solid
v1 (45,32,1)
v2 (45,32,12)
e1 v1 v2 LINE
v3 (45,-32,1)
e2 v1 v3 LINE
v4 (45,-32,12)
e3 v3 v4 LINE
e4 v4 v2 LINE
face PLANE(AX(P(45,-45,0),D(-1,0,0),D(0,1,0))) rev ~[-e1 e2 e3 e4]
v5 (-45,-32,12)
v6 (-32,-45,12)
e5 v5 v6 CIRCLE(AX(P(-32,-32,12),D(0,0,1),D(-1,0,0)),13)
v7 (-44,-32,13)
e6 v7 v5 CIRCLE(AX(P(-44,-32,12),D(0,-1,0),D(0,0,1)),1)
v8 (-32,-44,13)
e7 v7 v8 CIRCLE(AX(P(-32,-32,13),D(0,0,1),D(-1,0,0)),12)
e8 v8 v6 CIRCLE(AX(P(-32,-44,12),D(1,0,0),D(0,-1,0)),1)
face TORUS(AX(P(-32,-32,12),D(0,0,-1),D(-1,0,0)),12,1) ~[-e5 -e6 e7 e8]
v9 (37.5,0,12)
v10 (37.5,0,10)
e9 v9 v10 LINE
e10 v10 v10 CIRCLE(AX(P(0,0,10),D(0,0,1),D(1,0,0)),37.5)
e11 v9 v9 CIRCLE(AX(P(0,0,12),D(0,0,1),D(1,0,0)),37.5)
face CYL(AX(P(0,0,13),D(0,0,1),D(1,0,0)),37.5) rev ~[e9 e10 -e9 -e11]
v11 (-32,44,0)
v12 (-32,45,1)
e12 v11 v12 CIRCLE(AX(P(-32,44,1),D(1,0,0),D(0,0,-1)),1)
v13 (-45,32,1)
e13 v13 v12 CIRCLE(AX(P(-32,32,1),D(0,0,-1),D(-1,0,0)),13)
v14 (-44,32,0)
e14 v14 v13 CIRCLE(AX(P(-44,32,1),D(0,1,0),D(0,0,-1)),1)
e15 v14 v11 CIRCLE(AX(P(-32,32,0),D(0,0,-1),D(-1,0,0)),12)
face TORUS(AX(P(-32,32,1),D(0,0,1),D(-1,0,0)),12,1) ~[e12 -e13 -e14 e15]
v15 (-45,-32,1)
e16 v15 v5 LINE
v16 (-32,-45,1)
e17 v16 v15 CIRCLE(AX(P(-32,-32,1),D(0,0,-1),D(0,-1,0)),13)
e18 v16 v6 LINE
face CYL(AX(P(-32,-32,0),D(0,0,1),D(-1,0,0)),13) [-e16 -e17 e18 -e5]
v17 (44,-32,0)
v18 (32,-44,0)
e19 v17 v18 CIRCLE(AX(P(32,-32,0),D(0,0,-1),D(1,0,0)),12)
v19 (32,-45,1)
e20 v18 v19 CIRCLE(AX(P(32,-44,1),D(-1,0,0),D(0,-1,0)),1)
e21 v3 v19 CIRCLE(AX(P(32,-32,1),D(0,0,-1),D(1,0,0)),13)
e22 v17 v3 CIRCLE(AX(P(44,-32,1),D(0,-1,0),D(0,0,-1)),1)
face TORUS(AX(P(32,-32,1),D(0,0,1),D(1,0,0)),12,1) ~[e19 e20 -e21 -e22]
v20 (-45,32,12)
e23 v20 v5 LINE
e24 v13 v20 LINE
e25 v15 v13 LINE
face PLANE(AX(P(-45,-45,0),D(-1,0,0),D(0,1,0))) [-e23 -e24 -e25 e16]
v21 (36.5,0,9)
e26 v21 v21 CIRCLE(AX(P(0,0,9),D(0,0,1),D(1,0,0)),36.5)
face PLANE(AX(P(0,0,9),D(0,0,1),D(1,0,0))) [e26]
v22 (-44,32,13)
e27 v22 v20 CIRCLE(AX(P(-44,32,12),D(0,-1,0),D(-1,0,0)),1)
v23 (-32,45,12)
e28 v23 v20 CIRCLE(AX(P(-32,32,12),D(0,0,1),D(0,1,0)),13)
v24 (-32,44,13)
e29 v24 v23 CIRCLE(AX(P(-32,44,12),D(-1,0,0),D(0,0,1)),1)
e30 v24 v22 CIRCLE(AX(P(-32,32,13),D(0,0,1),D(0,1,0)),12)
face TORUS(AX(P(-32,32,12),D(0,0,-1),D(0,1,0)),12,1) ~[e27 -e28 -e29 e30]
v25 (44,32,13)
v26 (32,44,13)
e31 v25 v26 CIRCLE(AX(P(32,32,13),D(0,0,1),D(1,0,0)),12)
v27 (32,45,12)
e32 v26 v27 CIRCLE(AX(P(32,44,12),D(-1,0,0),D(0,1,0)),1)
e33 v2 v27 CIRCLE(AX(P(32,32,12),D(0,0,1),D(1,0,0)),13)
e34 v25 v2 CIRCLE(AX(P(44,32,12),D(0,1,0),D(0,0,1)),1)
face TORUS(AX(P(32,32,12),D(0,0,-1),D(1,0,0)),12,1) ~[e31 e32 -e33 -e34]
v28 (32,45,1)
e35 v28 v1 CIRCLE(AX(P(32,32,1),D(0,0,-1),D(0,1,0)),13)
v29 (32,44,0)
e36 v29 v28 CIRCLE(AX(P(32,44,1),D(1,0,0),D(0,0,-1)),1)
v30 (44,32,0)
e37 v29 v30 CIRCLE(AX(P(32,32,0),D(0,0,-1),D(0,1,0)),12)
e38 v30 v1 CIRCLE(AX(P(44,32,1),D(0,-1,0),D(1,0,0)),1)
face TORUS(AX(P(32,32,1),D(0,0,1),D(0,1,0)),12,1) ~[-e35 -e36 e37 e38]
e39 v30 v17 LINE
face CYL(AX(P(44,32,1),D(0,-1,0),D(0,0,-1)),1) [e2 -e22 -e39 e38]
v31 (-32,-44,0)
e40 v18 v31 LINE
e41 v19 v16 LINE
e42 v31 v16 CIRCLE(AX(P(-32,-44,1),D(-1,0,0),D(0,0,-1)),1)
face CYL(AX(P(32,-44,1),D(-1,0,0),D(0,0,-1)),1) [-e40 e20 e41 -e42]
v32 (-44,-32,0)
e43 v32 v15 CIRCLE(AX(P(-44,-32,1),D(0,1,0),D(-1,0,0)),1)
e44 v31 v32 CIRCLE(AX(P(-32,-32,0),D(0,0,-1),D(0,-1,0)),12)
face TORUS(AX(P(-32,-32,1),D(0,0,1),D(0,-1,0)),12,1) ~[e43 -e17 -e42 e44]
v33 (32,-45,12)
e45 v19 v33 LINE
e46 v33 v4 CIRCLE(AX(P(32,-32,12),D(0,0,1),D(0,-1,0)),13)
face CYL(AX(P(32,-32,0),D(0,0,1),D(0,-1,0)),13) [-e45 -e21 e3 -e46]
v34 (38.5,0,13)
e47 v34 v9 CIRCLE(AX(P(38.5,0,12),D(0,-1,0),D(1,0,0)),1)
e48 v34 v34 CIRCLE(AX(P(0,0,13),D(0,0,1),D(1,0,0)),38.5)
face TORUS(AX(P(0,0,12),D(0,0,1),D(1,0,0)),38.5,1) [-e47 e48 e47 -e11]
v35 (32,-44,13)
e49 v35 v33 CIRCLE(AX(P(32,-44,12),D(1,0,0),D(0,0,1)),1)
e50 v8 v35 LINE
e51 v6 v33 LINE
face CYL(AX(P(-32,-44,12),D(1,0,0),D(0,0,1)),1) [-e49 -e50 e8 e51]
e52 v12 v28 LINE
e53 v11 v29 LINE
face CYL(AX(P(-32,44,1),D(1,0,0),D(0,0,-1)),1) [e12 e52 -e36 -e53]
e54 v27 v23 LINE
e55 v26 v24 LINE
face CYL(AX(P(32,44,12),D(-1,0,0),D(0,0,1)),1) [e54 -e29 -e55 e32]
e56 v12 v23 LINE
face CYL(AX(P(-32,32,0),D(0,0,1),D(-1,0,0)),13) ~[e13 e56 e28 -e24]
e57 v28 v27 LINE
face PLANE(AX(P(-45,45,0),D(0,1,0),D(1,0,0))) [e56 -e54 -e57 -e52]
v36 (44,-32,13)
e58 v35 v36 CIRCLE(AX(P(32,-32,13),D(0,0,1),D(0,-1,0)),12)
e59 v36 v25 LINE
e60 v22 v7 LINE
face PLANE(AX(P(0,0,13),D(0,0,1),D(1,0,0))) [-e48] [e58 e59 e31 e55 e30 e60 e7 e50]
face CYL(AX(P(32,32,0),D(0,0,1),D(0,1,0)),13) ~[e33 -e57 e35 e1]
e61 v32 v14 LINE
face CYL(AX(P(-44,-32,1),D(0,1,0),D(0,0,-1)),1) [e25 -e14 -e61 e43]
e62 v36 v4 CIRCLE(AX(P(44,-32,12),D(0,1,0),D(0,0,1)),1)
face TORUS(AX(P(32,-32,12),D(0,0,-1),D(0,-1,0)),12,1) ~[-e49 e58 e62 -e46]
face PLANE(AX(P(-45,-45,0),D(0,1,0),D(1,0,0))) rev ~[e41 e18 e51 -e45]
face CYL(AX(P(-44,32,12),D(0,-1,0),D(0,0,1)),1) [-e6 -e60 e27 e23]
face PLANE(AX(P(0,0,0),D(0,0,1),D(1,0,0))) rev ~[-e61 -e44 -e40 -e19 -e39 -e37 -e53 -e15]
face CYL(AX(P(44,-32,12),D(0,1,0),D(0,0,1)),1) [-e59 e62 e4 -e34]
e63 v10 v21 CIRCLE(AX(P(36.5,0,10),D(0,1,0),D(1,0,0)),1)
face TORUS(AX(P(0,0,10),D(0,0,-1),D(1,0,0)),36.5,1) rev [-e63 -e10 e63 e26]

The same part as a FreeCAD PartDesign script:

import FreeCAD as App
import Part
import Sketcher
Q = App.Units.Quantity


def edges_at(feature, points):
    """Names of the edges that pass closest to the given points."""
    edges = feature.Shape.Edges
    near = lambda p: min(range(len(edges)), key=lambda i: edges[i].distToShape(Part.Vertex(*p))[0])
    return sorted({f"Edge{near(p) + 1}" for p in points})

doc = App.newDocument("Part")
params = doc.addObject("Spreadsheet::Sheet", "Params")
for row, (alias, value) in enumerate([
    ("sketch1_width", "90 mm"),
    ("pad1_length", "13 mm"),
    ("sketch2_diameter", "75 mm"),
    ("pocket1_length", "4 mm"),
    ("fillet_radius", "13 mm"),
    ("fillet2_radius", "1 mm"),
], start=1):
    params.set(f"A{row}", alias)
    params.set(f"B{row}", "=" + value)
    params.setAlias(f"B{row}", alias)

body = doc.addObject("PartDesign::Body", "Body")

sketch1 = body.newObject("Sketcher::SketchObject", "Sketch")
sketch1.AttachmentSupport = (doc.getObject("XY_Plane"), [""])
sketch1.MapMode = "FlatFace"
sketch1.addGeometry(Part.LineSegment(App.Vector(-45, 45, 0), App.Vector(-45, -45, 0)), False)
sketch1.addGeometry(Part.LineSegment(App.Vector(-45, -45, 0), App.Vector(45, -45, 0)), False)
sketch1.addGeometry(Part.LineSegment(App.Vector(45, -45, 0), App.Vector(45, 45, 0)), False)
sketch1.addGeometry(Part.LineSegment(App.Vector(45, 45, 0), App.Vector(-45, 45, 0)), False)
sketch1.addConstraint(Sketcher.Constraint("Coincident", 0, 2, 1, 1))
sketch1.addConstraint(Sketcher.Constraint("Coincident", 1, 2, 2, 1))
sketch1.addConstraint(Sketcher.Constraint("Coincident", 2, 2, 3, 1))
sketch1.addConstraint(Sketcher.Constraint("Coincident", 3, 2, 0, 1))
sketch1.addConstraint(Sketcher.Constraint("Vertical", 0))
sketch1.addConstraint(Sketcher.Constraint("Horizontal", 1))
sketch1.addConstraint(Sketcher.Constraint("Vertical", 2))
sketch1.addConstraint(Sketcher.Constraint("Horizontal", 3))
sketch1.addConstraint(Sketcher.Constraint("Symmetric", 0, 2, 2, 2, -1, 1))
sketch1.addConstraint(Sketcher.Constraint("Equal", 3, 0))
sketch1.addConstraint(Sketcher.Constraint("DistanceX", 1, 1, 1, 2, Q("90 mm")))
sketch1.setExpression("Constraints[10]", "Params.sketch1_width")
pad1 = body.newObject("PartDesign::Pad", "Pad")
pad1.Profile = sketch1
pad1.setExpression("Length", "Params.pad1_length")

sketch2 = body.newObject("Sketcher::SketchObject", "Sketch001")
sketch2.AttachmentSupport = (doc.getObject("XY_Plane"), [""])
sketch2.MapMode = "FlatFace"
sketch2.AttachmentOffset = App.Placement(App.Vector(0, 0, 13), App.Rotation())
sketch2.addGeometry(Part.Circle(App.Vector(0, 0, 0), App.Vector(0, 0, 1), 38), False)
sketch2.addConstraint(Sketcher.Constraint("Coincident", 0, 3, -1, 1))
sketch2.addConstraint(Sketcher.Constraint("Diameter", 0, Q("75 mm")))
sketch2.setExpression("Constraints[1]", "Params.sketch2_diameter")
pocket1 = body.newObject("PartDesign::Pocket", "Pocket")
pocket1.Profile = sketch2
pocket1.setExpression("Length", "Params.pocket1_length")
doc.recompute()

fillet = body.newObject("PartDesign::Fillet", "Fillet")
fillet.Base = (pocket1, edges_at(pocket1, [
    (45, 45, 6.5),
    (-45, 45, 6.5),
    (-45, -45, 6.5),
    (45, -45, 6.5),
]))
fillet.setExpression("Radius", "Params.fillet_radius")
doc.recompute()

fillet2 = body.newObject("PartDesign::Fillet", "Fillet001")
fillet2.Base = (fillet, edges_at(fillet, [
    (45, 0, 13),
    (0, 45, 0),
    (37.5, 0, 11),
    (-37.5, 0, 13),
    (-37.5, 0, 9),
]))
fillet2.setExpression("Radius", "Params.fillet2_radius")

doc.recompute()
